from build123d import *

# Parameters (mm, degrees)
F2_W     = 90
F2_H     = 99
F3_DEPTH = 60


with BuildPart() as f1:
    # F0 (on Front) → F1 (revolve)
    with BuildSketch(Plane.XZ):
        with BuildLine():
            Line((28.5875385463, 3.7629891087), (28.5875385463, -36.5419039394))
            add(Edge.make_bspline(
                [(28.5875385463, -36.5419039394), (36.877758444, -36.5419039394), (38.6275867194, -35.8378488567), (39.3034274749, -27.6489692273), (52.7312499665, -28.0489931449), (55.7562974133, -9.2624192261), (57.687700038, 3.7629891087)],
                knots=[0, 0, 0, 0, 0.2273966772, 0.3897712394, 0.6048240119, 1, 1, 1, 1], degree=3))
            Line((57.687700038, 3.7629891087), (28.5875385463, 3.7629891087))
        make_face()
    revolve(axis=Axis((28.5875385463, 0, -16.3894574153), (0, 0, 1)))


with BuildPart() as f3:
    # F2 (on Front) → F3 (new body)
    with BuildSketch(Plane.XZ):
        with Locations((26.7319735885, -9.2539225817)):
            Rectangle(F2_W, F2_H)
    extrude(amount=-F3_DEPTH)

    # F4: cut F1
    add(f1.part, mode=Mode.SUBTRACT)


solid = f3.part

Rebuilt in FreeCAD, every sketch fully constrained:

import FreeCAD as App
import Part
import Sketcher
from FreeCAD import Vector
Q = App.Units.Quantity


def add_polygon(sketch, points):
    """Adds a closed chain of lines whose ends are joined by coincident constraints."""
    first, n = sketch.GeometryCount, len(points)
    for a, b in zip(points, points[1:] + points[:1]):
        sketch.addGeometry(Part.LineSegment(App.Vector(*a, 0), App.Vector(*b, 0)), False)
    for i in range(n):
        sketch.addConstraint(Sketcher.Constraint("Coincident", first + i, 2, first + (i + 1) % n, 1))

doc = App.newDocument("Part")
params = doc.addObject("Spreadsheet::Sheet", "Params")
for row, (alias, value) in enumerate([
    ("revolution_angle", "360 deg"),
    ("sketch2_width", "90 mm"),
    ("sketch2_height", "99 mm"),
    ("pad1_length", "60 mm"),
], start=1):
    params.set(f"A{row}", alias)
    params.set(f"B{row}", "=" + value)
    params.setAlias(f"B{row}", alias)

body = doc.addObject("PartDesign::Body", "Body")

# Sketch on XZ plane
sketch1 = doc.addObject("Sketcher::SketchObject", "Sketch")
body.addObject(sketch1)
sketch1.AttachmentSupport = (doc.XZ_Plane, [""])
sketch1.MapMode = "FlatFace"
sketch1.addGeometry([
    Part.LineSegment(Vector(28.587539, 3.762989, 0), Vector(28.587539, -36.541904, 0)),
    Part.BSplineCurve([Vector(28.587539, -36.541904, 0), Vector(36.877758, -36.541904, 0), Vector(38.627587, -35.837849, 0), Vector(39.303427, -27.648969, 0), Vector(52.73125, -28.048993, 0), Vector(55.756297, -9.262419, 0), Vector(57.6877, 3.762989, 0)], [4, 1, 1, 1, 4], [0, 0.227396677, 0.389771239, 0.604824012, 1], False, 3, [1, 1, 1, 1, 1, 1, 1], False),
    Part.LineSegment(Vector(57.6877, 3.762989, 0), Vector(28.587539, 3.762989, 0)),
], False)
sketch1.addGeometry(Part.LineSegment(Vector(28.587539, -36.541904, 0), Vector(28.587539, 3.762989, 0)), True)  # axis
sketch1.addConstraint([
    Sketcher.Constraint("Block", 1),
    Sketcher.Constraint("Coincident", 0, 2, 1, 1),
    Sketcher.Constraint("Coincident", 1, 2, 2, 1),
    Sketcher.Constraint("Coincident", 2, 2, 0, 1),
    Sketcher.Constraint("Vertical", 0),
    Sketcher.Constraint("Horizontal", 2),
    Sketcher.Constraint("Vertical", 3),
    Sketcher.Constraint("Coincident", 3, 1, 0, 2),
    Sketcher.Constraint("Equal", 0, 3),
])
revolution = doc.addObject("PartDesign::Revolution", "Revolution")
body.addObject(revolution)
revolution.Profile = sketch1
revolution.ReferenceAxis = (sketch1, ["Axis0"])
revolution.setExpression("Angle", "Params.revolution_angle")
body2 = doc.addObject("PartDesign::Body", "Body001")

# Sketch on XZ plane
sketch2 = doc.addObject("Sketcher::SketchObject", "Sketch001")
body2.addObject(sketch2)
sketch2.AttachmentSupport = (doc.getObject("XZ_Plane001"), [""])
sketch2.MapMode = "FlatFace"
add_polygon(sketch2, [(-18.268026, 40.246077), (-18.268026, -58.753923), (71.731974, -58.753923), (71.731974, 40.246077)])  # lines 0-3
sketch2.addConstraint([
    Sketcher.Constraint("Vertical", 0),
    Sketcher.Constraint("Horizontal", 1),
    Sketcher.Constraint("Vertical", 2),
    Sketcher.Constraint("Horizontal", 3),
    Sketcher.Constraint("DistanceX", 1, 1, 1, 2, Q("90 mm")),
    Sketcher.Constraint("DistanceY", 0, 2, 0, 1, Q("99 mm")),
    Sketcher.Constraint("DistanceX", 0, 2, -1, 1, Q("18.268026 mm")),
    Sketcher.Constraint("DistanceY", 0, 2, -1, 1, Q("58.753923 mm")),
])
sketch2.setExpression("Constraints[8]", "Params.sketch2_width")
sketch2.setExpression("Constraints[9]", "Params.sketch2_height")
pad1 = doc.addObject("PartDesign::Pad", "Pad")
body2.addObject(pad1)
pad1.Profile = sketch2
pad1.setExpression("Length", "Params.pad1_length")
pad1.Reversed = True
doc.recompute()

boolean = doc.addObject("PartDesign::Boolean", "Boolean")
body2.addObject(boolean)
boolean.Type = "Cut"
boolean.addObjects([body])

doc.recompute()
